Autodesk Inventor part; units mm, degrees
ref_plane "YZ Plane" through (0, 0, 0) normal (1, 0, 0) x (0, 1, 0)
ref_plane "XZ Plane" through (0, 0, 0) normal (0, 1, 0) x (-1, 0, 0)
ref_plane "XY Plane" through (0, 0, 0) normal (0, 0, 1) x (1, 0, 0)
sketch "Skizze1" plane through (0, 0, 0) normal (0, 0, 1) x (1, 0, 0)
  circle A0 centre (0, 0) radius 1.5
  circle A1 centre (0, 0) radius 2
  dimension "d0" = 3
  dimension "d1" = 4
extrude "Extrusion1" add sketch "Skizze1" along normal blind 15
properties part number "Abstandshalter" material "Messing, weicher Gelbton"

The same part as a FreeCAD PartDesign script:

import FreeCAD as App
import Part
import Sketcher
Q = App.Units.Quantity

doc = App.newDocument("Part")
params = doc.addObject("Spreadsheet::Sheet", "Params")
for row, (alias, value) in enumerate([
    ("sketch1_diameter", "4 mm"),
    ("sketch1_diameter2", "3 mm"),
    ("pad1_length", "15 mm"),
], start=1):
    params.set(f"A{row}", alias)
    params.set(f"B{row}", "=" + value)
    params.setAlias(f"B{row}", alias)

body = doc.addObject("PartDesign::Body", "Body")

# Sketch on XY plane
sketch1 = doc.addObject("Sketcher::SketchObject", "Sketch")
body.addObject(sketch1)
sketch1.AttachmentSupport = (doc.XY_Plane, [""])
sketch1.MapMode = "FlatFace"
sketch1.addGeometry([
    Part.Circle(App.Vector(0, 0, 0), App.Vector(0, 0, 1), 2),
    Part.Circle(App.Vector(0, 0, 0), App.Vector(0, 0, 1), 1.5),
], False)
sketch1.addConstraint([
    Sketcher.Constraint("Coincident", 0, 3, -1, 1),
    Sketcher.Constraint("Coincident", 1, 3, -1, 1),
    Sketcher.Constraint("Diameter", 0, Q("4 mm")),
    Sketcher.Constraint("Diameter", 1, Q("3 mm")),
])
sketch1.setExpression("Constraints[2]", "Params.sketch1_diameter")
sketch1.setExpression("Constraints[3]", "Params.sketch1_diameter2")
pad1 = doc.addObject("PartDesign::Pad", "Pad")
body.addObject(pad1)
pad1.Profile = sketch1
pad1.setExpression("Length", "Params.pad1_length")

doc.recompute()
